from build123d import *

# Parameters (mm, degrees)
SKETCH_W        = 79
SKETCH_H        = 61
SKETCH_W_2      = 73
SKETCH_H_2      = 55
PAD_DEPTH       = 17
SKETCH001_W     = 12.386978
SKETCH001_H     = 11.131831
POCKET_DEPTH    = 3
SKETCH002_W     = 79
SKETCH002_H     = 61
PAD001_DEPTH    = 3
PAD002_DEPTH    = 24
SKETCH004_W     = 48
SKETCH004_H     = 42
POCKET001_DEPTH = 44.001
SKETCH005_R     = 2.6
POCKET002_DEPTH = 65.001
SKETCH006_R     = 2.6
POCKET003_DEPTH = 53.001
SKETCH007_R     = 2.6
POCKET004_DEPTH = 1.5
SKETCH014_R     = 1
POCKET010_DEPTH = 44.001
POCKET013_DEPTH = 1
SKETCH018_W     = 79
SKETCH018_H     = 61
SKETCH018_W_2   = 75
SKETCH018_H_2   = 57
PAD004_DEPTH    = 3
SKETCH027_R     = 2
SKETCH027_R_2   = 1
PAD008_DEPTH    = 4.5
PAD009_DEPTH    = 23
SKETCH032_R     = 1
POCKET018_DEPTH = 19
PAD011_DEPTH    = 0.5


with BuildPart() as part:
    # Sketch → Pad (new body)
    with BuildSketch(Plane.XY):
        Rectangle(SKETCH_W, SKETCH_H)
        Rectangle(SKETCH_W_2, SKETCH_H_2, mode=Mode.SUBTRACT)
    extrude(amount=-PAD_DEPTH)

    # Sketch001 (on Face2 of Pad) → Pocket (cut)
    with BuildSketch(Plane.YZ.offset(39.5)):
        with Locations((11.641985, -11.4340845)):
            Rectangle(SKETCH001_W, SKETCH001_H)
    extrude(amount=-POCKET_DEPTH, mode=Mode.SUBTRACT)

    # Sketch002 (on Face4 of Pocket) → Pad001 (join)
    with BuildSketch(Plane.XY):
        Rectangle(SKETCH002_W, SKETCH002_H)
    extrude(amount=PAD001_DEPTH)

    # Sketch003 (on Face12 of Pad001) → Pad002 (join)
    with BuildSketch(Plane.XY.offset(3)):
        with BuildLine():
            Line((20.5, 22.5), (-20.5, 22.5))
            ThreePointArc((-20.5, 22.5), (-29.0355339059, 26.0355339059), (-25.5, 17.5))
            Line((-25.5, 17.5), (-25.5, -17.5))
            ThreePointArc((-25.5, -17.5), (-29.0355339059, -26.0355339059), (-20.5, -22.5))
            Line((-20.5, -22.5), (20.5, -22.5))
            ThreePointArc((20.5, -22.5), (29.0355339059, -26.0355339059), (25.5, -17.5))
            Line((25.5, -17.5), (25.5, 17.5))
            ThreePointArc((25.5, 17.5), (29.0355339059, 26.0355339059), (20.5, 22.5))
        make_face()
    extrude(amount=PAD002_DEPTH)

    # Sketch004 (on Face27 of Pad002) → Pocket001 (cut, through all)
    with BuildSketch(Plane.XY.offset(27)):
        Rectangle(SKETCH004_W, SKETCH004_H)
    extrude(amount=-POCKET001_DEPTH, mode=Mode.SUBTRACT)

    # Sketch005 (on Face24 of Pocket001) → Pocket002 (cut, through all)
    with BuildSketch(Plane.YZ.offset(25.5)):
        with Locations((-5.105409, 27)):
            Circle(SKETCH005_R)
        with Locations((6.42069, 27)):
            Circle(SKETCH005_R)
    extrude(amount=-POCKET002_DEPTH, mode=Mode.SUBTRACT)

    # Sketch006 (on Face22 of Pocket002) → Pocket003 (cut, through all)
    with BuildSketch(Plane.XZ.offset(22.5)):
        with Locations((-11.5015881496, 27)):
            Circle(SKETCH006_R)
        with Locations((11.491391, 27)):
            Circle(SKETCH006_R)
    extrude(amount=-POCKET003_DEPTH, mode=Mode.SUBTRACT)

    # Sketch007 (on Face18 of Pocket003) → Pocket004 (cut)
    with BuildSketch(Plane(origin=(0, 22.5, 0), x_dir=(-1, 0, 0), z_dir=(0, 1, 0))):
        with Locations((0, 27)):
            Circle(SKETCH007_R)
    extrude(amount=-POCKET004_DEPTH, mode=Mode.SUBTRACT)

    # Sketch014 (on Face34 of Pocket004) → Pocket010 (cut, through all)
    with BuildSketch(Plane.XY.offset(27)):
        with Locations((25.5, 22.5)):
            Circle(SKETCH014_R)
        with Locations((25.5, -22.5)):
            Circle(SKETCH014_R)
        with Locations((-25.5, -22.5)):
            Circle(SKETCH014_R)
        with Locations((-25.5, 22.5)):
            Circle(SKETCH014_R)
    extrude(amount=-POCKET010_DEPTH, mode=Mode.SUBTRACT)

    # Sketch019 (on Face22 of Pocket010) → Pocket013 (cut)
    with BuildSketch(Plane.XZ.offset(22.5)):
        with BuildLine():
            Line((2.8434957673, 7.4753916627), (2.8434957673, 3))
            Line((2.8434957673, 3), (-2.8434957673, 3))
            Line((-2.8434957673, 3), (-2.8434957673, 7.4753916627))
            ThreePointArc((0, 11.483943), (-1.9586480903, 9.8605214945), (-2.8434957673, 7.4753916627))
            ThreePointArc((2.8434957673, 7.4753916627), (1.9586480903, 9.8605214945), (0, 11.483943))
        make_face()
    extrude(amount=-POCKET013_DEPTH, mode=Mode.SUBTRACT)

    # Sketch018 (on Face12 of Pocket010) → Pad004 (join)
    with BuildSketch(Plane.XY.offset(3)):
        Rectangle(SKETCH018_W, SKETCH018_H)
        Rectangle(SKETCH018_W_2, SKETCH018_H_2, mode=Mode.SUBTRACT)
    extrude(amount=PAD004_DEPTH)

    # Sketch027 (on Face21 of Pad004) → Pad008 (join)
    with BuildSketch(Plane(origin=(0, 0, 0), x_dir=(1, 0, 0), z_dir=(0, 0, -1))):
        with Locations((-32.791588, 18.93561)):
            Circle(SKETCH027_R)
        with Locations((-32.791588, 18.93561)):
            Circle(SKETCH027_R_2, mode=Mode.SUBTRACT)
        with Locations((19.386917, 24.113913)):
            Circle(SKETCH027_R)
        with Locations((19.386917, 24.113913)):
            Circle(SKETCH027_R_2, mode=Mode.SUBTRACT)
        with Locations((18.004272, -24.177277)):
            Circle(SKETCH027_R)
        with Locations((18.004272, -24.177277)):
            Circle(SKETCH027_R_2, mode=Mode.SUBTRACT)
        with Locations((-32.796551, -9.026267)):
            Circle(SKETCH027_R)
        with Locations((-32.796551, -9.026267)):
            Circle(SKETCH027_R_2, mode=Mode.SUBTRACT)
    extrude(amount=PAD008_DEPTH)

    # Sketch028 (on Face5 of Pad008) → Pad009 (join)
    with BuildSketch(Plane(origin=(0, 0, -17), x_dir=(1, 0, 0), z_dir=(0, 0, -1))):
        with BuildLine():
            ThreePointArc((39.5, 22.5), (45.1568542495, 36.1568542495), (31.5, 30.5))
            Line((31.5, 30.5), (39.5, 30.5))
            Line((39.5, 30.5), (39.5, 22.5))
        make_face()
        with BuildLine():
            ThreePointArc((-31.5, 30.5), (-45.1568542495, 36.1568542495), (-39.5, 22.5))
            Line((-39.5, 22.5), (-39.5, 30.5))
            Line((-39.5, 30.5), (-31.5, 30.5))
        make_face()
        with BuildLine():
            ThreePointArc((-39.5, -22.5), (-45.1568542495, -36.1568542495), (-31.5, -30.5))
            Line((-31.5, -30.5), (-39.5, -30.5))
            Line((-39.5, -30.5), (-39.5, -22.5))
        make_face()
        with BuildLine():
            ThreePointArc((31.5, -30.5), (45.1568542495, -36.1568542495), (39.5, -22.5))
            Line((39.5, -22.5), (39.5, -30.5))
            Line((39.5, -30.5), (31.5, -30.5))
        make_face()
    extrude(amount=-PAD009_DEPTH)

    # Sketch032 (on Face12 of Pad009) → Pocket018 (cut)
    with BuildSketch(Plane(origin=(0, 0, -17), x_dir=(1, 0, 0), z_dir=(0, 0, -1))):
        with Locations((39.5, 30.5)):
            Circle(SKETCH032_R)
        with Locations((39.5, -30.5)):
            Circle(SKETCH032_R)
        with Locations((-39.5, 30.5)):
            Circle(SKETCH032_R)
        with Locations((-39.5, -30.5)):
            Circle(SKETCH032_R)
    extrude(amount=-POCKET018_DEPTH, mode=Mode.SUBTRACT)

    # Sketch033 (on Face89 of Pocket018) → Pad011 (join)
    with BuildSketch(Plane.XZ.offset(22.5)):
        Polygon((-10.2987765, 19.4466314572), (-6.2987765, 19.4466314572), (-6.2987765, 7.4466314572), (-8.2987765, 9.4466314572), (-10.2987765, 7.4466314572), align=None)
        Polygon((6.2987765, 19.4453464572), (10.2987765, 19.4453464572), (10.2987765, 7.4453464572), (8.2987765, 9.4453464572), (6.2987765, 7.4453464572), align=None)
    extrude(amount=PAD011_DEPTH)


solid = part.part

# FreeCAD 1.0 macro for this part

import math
import FreeCAD as App
import Part
import Sketcher
from FreeCAD import Vector

doc = App.newDocument("Part")
params = doc.addObject("Spreadsheet::Sheet", "Params")
for row, (alias, value) in enumerate([
    ("sketch1_width", "79 mm"),
    ("sketch1_width2", "73 mm"),
    ("sketch1_height", "61 mm"),
    ("sketch1_height2", "55 mm"),
    ("pad1_length", "17 mm"),
    ("pocket1_length", "3 mm"),
    ("sketch3_width", "79 mm"),
    ("sketch3_height", "61 mm"),
    ("pad2_length", "3 mm"),
    ("sketch4_radius", "5 mm"),
    ("sketch4_width", "41 mm"),
    ("sketch4_height", "35 mm"),
    ("pad3_length", "24 mm"),
    ("sketch5_width", "48 mm"),
    ("sketch5_height", "42 mm"),
    ("sketch6_diameter", "5.2 mm"),
    ("sketch7_diameter", "5.2 mm"),
    ("sketch8_diameter", "5.2 mm"),
    ("pocket5_length", "1.5 mm"),
    ("sketch9_diameter", "2 mm"),
    ("pocket7_length", "1 mm"),
    ("sketch11_width", "79 mm"),
    ("sketch11_width2", "75 mm"),
    ("sketch11_height", "61 mm"),
    ("sketch11_height2", "57 mm"),
    ("pad4_length", "3 mm"),
    ("sketch12_diameter", "4 mm"),
    ("sketch12_diameter2", "2 mm"),
    ("pad5_length", "4.5 mm"),
    ("sketch13_radius", "8 mm"),
    ("pad6_length", "23 mm"),
    ("sketch14_diameter", "2 mm"),
    ("pocket8_length", "19 mm"),
    ("sketch15_width", "4 mm"),
    ("sketch15_height", "12 mm"),
    ("pad7_length", "0.5 mm"),
], start=1):
    params.set(f"A{row}", alias)
    params.set(f"B{row}", "=" + value)
    params.setAlias(f"B{row}", alias)

body = doc.addObject("PartDesign::Body", "Body")

# Sketch on XY plane
sketch1 = doc.addObject("Sketcher::SketchObject", "Sketch")
body.addObject(sketch1)
sketch1.AttachmentSupport = (doc.XY_Plane, [""])
sketch1.MapMode = "FlatFace"
sketch1.addGeometry(Part.LineSegment(Vector(-40, 30, 0), Vector(-40, -30, 0)), False)
sketch1.addGeometry(Part.LineSegment(Vector(-40, -30, 0), Vector(40, -30, 0)), False)
sketch1.addGeometry(Part.LineSegment(Vector(40, -30, 0), Vector(40, 30, 0)), False)
sketch1.addGeometry(Part.LineSegment(Vector(40, 30, 0), Vector(-40, 30, 0)), False)
sketch1.addGeometry(Part.LineSegment(Vector(36, -28, 0), Vector(-36, -28, 0)), False)
sketch1.addGeometry(Part.LineSegment(Vector(-36, -28, 0), Vector(-36, 28, 0)), False)
sketch1.addGeometry(Part.LineSegment(Vector(-36, 28, 0), Vector(36, 28, 0)), False)
sketch1.addGeometry(Part.LineSegment(Vector(36, 28, 0), Vector(36, -28, 0)), False)
sketch1.addConstraint(Sketcher.Constraint("Coincident", 0, 2, 1, 1))
sketch1.addConstraint(Sketcher.Constraint("Coincident", 1, 2, 2, 1))
sketch1.addConstraint(Sketcher.Constraint("Coincident", 2, 2, 3, 1))
sketch1.addConstraint(Sketcher.Constraint("Coincident", 3, 2, 0, 1))
sketch1.addConstraint(Sketcher.Constraint("Coincident", 4, 2, 5, 1))
sketch1.addConstraint(Sketcher.Constraint("Coincident", 5, 2, 6, 1))
sketch1.addConstraint(Sketcher.Constraint("Coincident", 6, 2, 7, 1))
sketch1.addConstraint(Sketcher.Constraint("Coincident", 7, 2, 4, 1))
sketch1.addConstraint(Sketcher.Constraint("Vertical", 0))
sketch1.addConstraint(Sketcher.Constraint("Horizontal", 1))
sketch1.addConstraint(Sketcher.Constraint("Vertical", 2))
sketch1.addConstraint(Sketcher.Constraint("Horizontal", 3))
sketch1.addConstraint(Sketcher.Constraint("Horizontal", 4))
sketch1.addConstraint(Sketcher.Constraint("Vertical", 5))
sketch1.addConstraint(Sketcher.Constraint("Horizontal", 6))
sketch1.addConstraint(Sketcher.Constraint("Vertical", 7))
sketch1.addConstraint(Sketcher.Constraint("Symmetric", 0, 2, 2, 2, -1, 1))
sketch1.addConstraint(Sketcher.Constraint("Symmetric", 4, 2, 6, 2, -1, 1))
sketch1.addConstraint(Sketcher.Constraint("DistanceX", 1, 1, 1, 2, 79.0))
sketch1.addConstraint(Sketcher.Constraint("DistanceX", 4, 2, 4, 1, 73.0))
sketch1.addConstraint(Sketcher.Constraint("DistanceY", 0, 2, 0, 1, 61.0))
sketch1.addConstraint(Sketcher.Constraint("DistanceY", 5, 1, 5, 2, 55.0))
sketch1.setExpression("Constraints[18]", "Params.sketch1_width")
sketch1.setExpression("Constraints[19]", "Params.sketch1_width2")
sketch1.setExpression("Constraints[20]", "Params.sketch1_height")
sketch1.setExpression("Constraints[21]", "Params.sketch1_height2")
pad1 = doc.addObject("PartDesign::Pad", "Pad")
body.addObject(pad1)
pad1.Profile = sketch1
pad1.setExpression("Length", "Params.pad1_length")
pad1.Reversed = True

# Sketch on YZ plane
sketch2 = doc.addObject("Sketcher::SketchObject", "Sketch001")
body.addObject(sketch2)
sketch2.AttachmentSupport = (doc.YZ_Plane, [""])
sketch2.MapMode = "FlatFace"
sketch2.AttachmentOffset = App.Placement(Vector(0, 0, 39.5), App.Rotation())
sketch2.addGeometry(Part.LineSegment(Vector(5, -6, 0), Vector(5, -17, 0)), False)
sketch2.addGeometry(Part.LineSegment(Vector(5, -17, 0), Vector(18, -17, 0)), False)
sketch2.addGeometry(Part.LineSegment(Vector(18, -17, 0), Vector(18, -6, 0)), False)
sketch2.addGeometry(Part.LineSegment(Vector(18, -6, 0), Vector(5, -6, 0)), False)
sketch2.addConstraint(Sketcher.Constraint("Coincident", 0, 2, 1, 1))
sketch2.addConstraint(Sketcher.Constraint("Coincident", 1, 2, 2, 1))
sketch2.addConstraint(Sketcher.Constraint("Coincident", 2, 2, 3, 1))
sketch2.addConstraint(Sketcher.Constraint("Coincident", 3, 2, 0, 1))
sketch2.addConstraint(Sketcher.Constraint("Vertical", 0))
sketch2.addConstraint(Sketcher.Constraint("Horizontal", 1))
sketch2.addConstraint(Sketcher.Constraint("Vertical", 2))
sketch2.addConstraint(Sketcher.Constraint("Horizontal", 3))
sketch2.addConstraint(Sketcher.Constraint("DistanceY", 0, 2, -1, 1, 17.0))
sketch2.addConstraint(Sketcher.Constraint("DistanceX", 1, 1, 1, 2, 12.386978))
sketch2.addConstraint(Sketcher.Constraint("DistanceY", 0, 2, 0, 1, 11.131831))
sketch2.addConstraint(Sketcher.Constraint("DistanceX", -1, 1, 0, 2, 5.448496))
pocket1 = doc.addObject("PartDesign::Pocket", "Pocket")
body.addObject(pocket1)
pocket1.Profile = sketch2
pocket1.setExpression("Length", "Params.pocket1_length")

# Sketch on XY plane
sketch3 = doc.addObject("Sketcher::SketchObject", "Sketch002")
body.addObject(sketch3)
sketch3.AttachmentSupport = (doc.XY_Plane, [""])
sketch3.MapMode = "FlatFace"
sketch3.addGeometry(Part.LineSegment(Vector(-40, 30, 0), Vector(-40, -30, 0)), False)
sketch3.addGeometry(Part.LineSegment(Vector(-40, -30, 0), Vector(40, -30, 0)), False)
sketch3.addGeometry(Part.LineSegment(Vector(40, -30, 0), Vector(40, 30, 0)), False)
sketch3.addGeometry(Part.LineSegment(Vector(40, 30, 0), Vector(-40, 30, 0)), False)
sketch3.addConstraint(Sketcher.Constraint("Coincident", 0, 2, 1, 1))
sketch3.addConstraint(Sketcher.Constraint("Coincident", 1, 2, 2, 1))
sketch3.addConstraint(Sketcher.Constraint("Coincident", 2, 2, 3, 1))
sketch3.addConstraint(Sketcher.Constraint("Coincident", 3, 2, 0, 1))
sketch3.addConstraint(Sketcher.Constraint("Vertical", 0))
sketch3.addConstraint(Sketcher.Constraint("Horizontal", 1))
sketch3.addConstraint(Sketcher.Constraint("Vertical", 2))
sketch3.addConstraint(Sketcher.Constraint("Horizontal", 3))
sketch3.addConstraint(Sketcher.Constraint("Symmetric", 0, 2, 2, 2, -1, 1))
sketch3.addConstraint(Sketcher.Constraint("DistanceX", 1, 1, 1, 2, 79.0))
sketch3.addConstraint(Sketcher.Constraint("DistanceY", 0, 2, 0, 1, 61.0))
sketch3.setExpression("Constraints[9]", "Params.sketch3_width")
sketch3.setExpression("Constraints[10]", "Params.sketch3_height")
pad2 = doc.addObject("PartDesign::Pad", "Pad001")
body.addObject(pad2)
pad2.Profile = sketch3
pad2.setExpression("Length", "Params.pad2_length")

# Sketch on XY plane
sketch4 = doc.addObject("Sketcher::SketchObject", "Sketch003")
body.addObject(sketch4)
sketch4.AttachmentSupport = (doc.XY_Plane, [""])
sketch4.MapMode = "FlatFace"
sketch4.AttachmentOffset = App.Placement(Vector(0, 0, 3), App.Rotation())
sketch4.addGeometry(Part.LineSegment(Vector(20, 22, 0), Vector(-20, 22, 0)), False)
sketch4.addGeometry(Part.ArcOfCircle(Part.Circle(Vector(-26, 22, 0), Vector(0, 0, 1), 5), math.radians(0), math.radians(270)), False)
sketch4.addGeometry(Part.LineSegment(Vector(-26, 18, 0), Vector(-26, -18, 0)), False)
sketch4.addGeometry(Part.ArcOfCircle(Part.Circle(Vector(-26, -22, 0), Vector(0, 0, 1), 5), math.radians(90), math.radians(360)), False)
sketch4.addGeometry(Part.LineSegment(Vector(-20, -22, 0), Vector(20, -22, 0)), False)
sketch4.addGeometry(Part.ArcOfCircle(Part.Circle(Vector(26, -22, 0), Vector(0, 0, 1), 5), math.radians(180), math.radians(450)), False)
sketch4.addGeometry(Part.LineSegment(Vector(26, -18, 0), Vector(26, 18, 0)), False)
sketch4.addGeometry(Part.ArcOfCircle(Part.Circle(Vector(26, 22, 0), Vector(0, 0, 1), 5), math.radians(-90), math.radians(180)), False)
sketch4.addConstraint(Sketcher.Constraint("Coincident", 0, 2, 1, 1))
sketch4.addConstraint(Sketcher.Constraint("Coincident", 1, 2, 2, 1))
sketch4.addConstraint(Sketcher.Constraint("Coincident", 2, 2, 3, 1))
sketch4.addConstraint(Sketcher.Constraint("Coincident", 3, 2, 4, 1))
sketch4.addConstraint(Sketcher.Constraint("Coincident", 4, 2, 5, 1))
sketch4.addConstraint(Sketcher.Constraint("Coincident", 5, 2, 6, 1))
sketch4.addConstraint(Sketcher.Constraint("Coincident", 6, 2, 7, 1))
sketch4.addConstraint(Sketcher.Constraint("Coincident", 7, 2, 0, 1))
sketch4.addConstraint(Sketcher.Constraint("Horizontal", 0))
sketch4.addConstraint(Sketcher.Constraint("Vertical", 2))
sketch4.addConstraint(Sketcher.Constraint("Horizontal", 4))
sketch4.addConstraint(Sketcher.Constraint("Vertical", 6))
sketch4.addConstraint(Sketcher.Constraint("Equal", 1, 3))
sketch4.addConstraint(Sketcher.Constraint("Equal", 3, 5))
sketch4.addConstraint(Sketcher.Constraint("Equal", 5, 7))
sketch4.addConstraint(Sketcher.Constraint("Symmetric", 1, 3, 5, 3, -1, 1))
sketch4.addConstraint(Sketcher.Constraint("Symmetric", 3, 3, 7, 3, -1, 1))
sketch4.addConstraint(Sketcher.Constraint("Symmetric", 3, 3, 5, 3, -2))
sketch4.addConstraint(Sketcher.Constraint("Horizontal", 7, 3, 0, 2))
sketch4.addConstraint(Sketcher.Constraint("Horizontal", 5, 3, 3, 2))
sketch4.addConstraint(Sketcher.Constraint("Vertical", 3, 3, 1, 2))
sketch4.addConstraint(Sketcher.Constraint("Vertical", 7, 3, 5, 2))
sketch4.addConstraint(Sketcher.Constraint("Radius", 1, 5.0))
sketch4.addConstraint(Sketcher.Constraint("DistanceX", 0, 2, 0, 1, 41.0))
sketch4.addConstraint(Sketcher.Constraint("DistanceY", 2, 2, 2, 1, 35.0))
sketch4.setExpression("Constraints[22]", "Params.sketch4_radius")
sketch4.setExpression("Constraints[23]", "Params.sketch4_width")
sketch4.setExpression("Constraints[24]", "Params.sketch4_height")
pad3 = doc.addObject("PartDesign::Pad", "Pad002")
body.addObject(pad3)
pad3.Profile = sketch4
pad3.setExpression("Length", "Params.pad3_length")

# Sketch on XY plane
sketch5 = doc.addObject("Sketcher::SketchObject", "Sketch004")
body.addObject(sketch5)
sketch5.AttachmentSupport = (doc.XY_Plane, [""])
sketch5.MapMode = "FlatFace"
sketch5.AttachmentOffset = App.Placement(Vector(0, 0, 27), App.Rotation())
sketch5.addGeometry(Part.LineSegment(Vector(-24, 21, 0), Vector(-24, -21, 0)), False)
sketch5.addGeometry(Part.LineSegment(Vector(-24, -21, 0), Vector(24, -21, 0)), False)
sketch5.addGeometry(Part.LineSegment(Vector(24, -21, 0), Vector(24, 21, 0)), False)
sketch5.addGeometry(Part.LineSegment(Vector(24, 21, 0), Vector(-24, 21, 0)), False)
sketch5.addConstraint(Sketcher.Constraint("Coincident", 0, 2, 1, 1))
sketch5.addConstraint(Sketcher.Constraint("Coincident", 1, 2, 2, 1))
sketch5.addConstraint(Sketcher.Constraint("Coincident", 2, 2, 3, 1))
sketch5.addConstraint(Sketcher.Constraint("Coincident", 3, 2, 0, 1))
sketch5.addConstraint(Sketcher.Constraint("Vertical", 0))
sketch5.addConstraint(Sketcher.Constraint("Horizontal", 1))
sketch5.addConstraint(Sketcher.Constraint("Vertical", 2))
sketch5.addConstraint(Sketcher.Constraint("Horizontal", 3))
sketch5.addConstraint(Sketcher.Constraint("Symmetric", 0, 2, 2, 2, -1, 1))
sketch5.addConstraint(Sketcher.Constraint("DistanceX", 1, 1, 1, 2, 48.0))
sketch5.addConstraint(Sketcher.Constraint("DistanceY", 0, 2, 0, 1, 42.0))
sketch5.setExpression("Constraints[9]", "Params.sketch5_width")
sketch5.setExpression("Constraints[10]", "Params.sketch5_height")
pocket2 = doc.addObject("PartDesign::Pocket", "Pocket001")
body.addObject(pocket2)
pocket2.Profile = sketch5
pocket2.Type = "ThroughAll"

# Sketch on YZ plane
sketch6 = doc.addObject("Sketcher::SketchObject", "Sketch005")
body.addObject(sketch6)
sketch6.AttachmentSupport = (doc.YZ_Plane, [""])
sketch6.MapMode = "FlatFace"
sketch6.AttachmentOffset = App.Placement(Vector(0, 0, 25.5), App.Rotation())
sketch6.addGeometry(Part.Circle(Vector(-5.1, 27, 0), Vector(0, 0, 1), 2.6), False)
sketch6.addGeometry(Part.Circle(Vector(6.4, 27, 0), Vector(0, 0, 1), 2.6), False)
sketch6.addConstraint(Sketcher.Constraint("Equal", 0, 1))
sketch6.addConstraint(Sketcher.Constraint("Horizontal", 0, 3, 1, 3))
sketch6.addConstraint(Sketcher.Constraint("Diameter", 0, 5.2))
sketch6.addConstraint(Sketcher.Constraint("DistanceY", -1, 1, 0, 3, 27.0))
sketch6.addConstraint(Sketcher.Constraint("DistanceX", 0, 3, 1, 3, 11.526099))
sketch6.addConstraint(Sketcher.Constraint("DistanceX", 0, 3, -1, 1, 5.105409))
sketch6.setExpression("Constraints[2]", "Params.sketch6_diameter")
pocket3 = doc.addObject("PartDesign::Pocket", "Pocket002")
body.addObject(pocket3)
pocket3.Profile = sketch6
pocket3.Type = "ThroughAll"

# Sketch on XZ plane
sketch7 = doc.addObject("Sketcher::SketchObject", "Sketch006")
body.addObject(sketch7)
sketch7.AttachmentSupport = (doc.XZ_Plane, [""])
sketch7.MapMode = "FlatFace"
sketch7.AttachmentOffset = App.Placement(Vector(0, 0, 22.5), App.Rotation())
sketch7.addGeometry(Part.Circle(Vector(-11.5, 27, 0), Vector(0, 0, 1), 2.6), False)
sketch7.addGeometry(Part.Circle(Vector(11.5, 27, 0), Vector(0, 0, 1), 2.6), False)
sketch7.addConstraint(Sketcher.Constraint("Equal", 0, 1))
sketch7.addConstraint(Sketcher.Constraint("Horizontal", 0, 3, 1, 3))
sketch7.addConstraint(Sketcher.Constraint("Diameter", 0, 5.2))
sketch7.addConstraint(Sketcher.Constraint("DistanceY", -1, 1, 0, 3, 27.0))
sketch7.addConstraint(Sketcher.Constraint("DistanceX", 0, 3, -1, 1, 11.501588))
sketch7.addConstraint(Sketcher.Constraint("DistanceX", -1, 1, 1, 3, 11.491391))
sketch7.setExpression("Constraints[2]", "Params.sketch7_diameter")
pocket4 = doc.addObject("PartDesign::Pocket", "Pocket003")
body.addObject(pocket4)
pocket4.Profile = sketch7
pocket4.Type = "ThroughAll"

# Sketch on XZ plane
sketch8 = doc.addObject("Sketcher::SketchObject", "Sketch007")
body.addObject(sketch8)
sketch8.AttachmentSupport = (doc.XZ_Plane, [""])
sketch8.MapMode = "FlatFace"
sketch8.AttachmentOffset = App.Placement(Vector(0, 0, -22.5), App.Rotation())
sketch8.addGeometry(Part.Circle(Vector(0, 27, 0), Vector(0, 0, 1), 2.6), False)
sketch8.addConstraint(Sketcher.Constraint("PointOnObject", 0, 3, -2))
sketch8.addConstraint(Sketcher.Constraint("Diameter", 0, 5.2))
sketch8.addConstraint(Sketcher.Constraint("DistanceY", -1, 1, 0, 3, 27.0))
sketch8.setExpression("Constraints[1]", "Params.sketch8_diameter")
pocket5 = doc.addObject("PartDesign::Pocket", "Pocket004")
body.addObject(pocket5)
pocket5.Profile = sketch8
pocket5.setExpression("Length", "Params.pocket5_length")
pocket5.Reversed = True

# Sketch on XY plane
sketch9 = doc.addObject("Sketcher::SketchObject", "Sketch008")
body.addObject(sketch9)
sketch9.AttachmentSupport = (doc.XY_Plane, [""])
sketch9.MapMode = "FlatFace"
sketch9.AttachmentOffset = App.Placement(Vector(0, 0, 27), App.Rotation())
sketch9.addGeometry(Part.Circle(Vector(25.5, 22.5, 0), Vector(0, 0, 1), 1), False)
sketch9.addGeometry(Part.Circle(Vector(25.5, -22.5, 0), Vector(0, 0, 1), 1), False)
sketch9.addGeometry(Part.Circle(Vector(-25.5, -22.5, 0), Vector(0, 0, 1), 1), False)
sketch9.addGeometry(Part.Circle(Vector(-25.5, 22.5, 0), Vector(0, 0, 1), 1), False)
sketch9.addConstraint(Sketcher.Constraint("Equal", 0, 1))
sketch9.addConstraint(Sketcher.Constraint("Equal", 1, 2))
sketch9.addConstraint(Sketcher.Constraint("Equal", 2, 3))
sketch9.addConstraint(Sketcher.Constraint("Symmetric", 0, 3, 2, 3, -1, 1))
sketch9.addConstraint(Sketcher.Constraint("Symmetric", 1, 3, 3, 3, -1, 1))
sketch9.addConstraint(Sketcher.Constraint("Symmetric", 1, 3, 2, 3, -2))
sketch9.addConstraint(Sketcher.Constraint("Diameter", 0, 2.0))
sketch9.addConstraint(Sketcher.Constraint("DistanceY", 1, 3, 0, 3, 45.0))
sketch9.addConstraint(Sketcher.Constraint("DistanceX", 2, 3, 1, 3, 51.0))
sketch9.setExpression("Constraints[6]", "Params.sketch9_diameter")
pocket6 = doc.addObject("PartDesign::Pocket", "Pocket005")
body.addObject(pocket6)
pocket6.Profile = sketch9
pocket6.Type = "ThroughAll"

# Sketch on XZ plane
sketch10 = doc.addObject("Sketcher::SketchObject", "Sketch009")
body.addObject(sketch10)
sketch10.AttachmentSupport = (doc.XZ_Plane, [""])
sketch10.MapMode = "FlatFace"
sketch10.AttachmentOffset = App.Placement(Vector(0, 0, 22.5), App.Rotation())
sketch10.addGeometry(Part.LineSegment(Vector(2.8, 3, 0), Vector(2.8, 7.5, 0)), False)
sketch10.addGeometry(Part.ArcOfCircle(Part.Circle(Vector(-2.1, 7, 0), Vector(0, 0, 1), 4.9), math.radians(5), math.radians(65)), False)
sketch10.addGeometry(Part.ArcOfCircle(Part.Circle(Vector(2.1, 7, 0), Vector(0, 0, 1), 4.9), math.radians(115), math.radians(175)), False)
sketch10.addGeometry(Part.LineSegment(Vector(-2.8, 7.5, 0), Vector(-2.8, 3, 0)), False)
sketch10.addGeometry(Part.LineSegment(Vector(-2.8, 3, 0), Vector(2.8, 3, 0)), False)
sketch10.addConstraint(Sketcher.Constraint("Coincident", 0, 2, 1, 1))
sketch10.addConstraint(Sketcher.Constraint("Coincident", 1, 2, 2, 1))
sketch10.addConstraint(Sketcher.Constraint("Coincident", 2, 2, 3, 1))
sketch10.addConstraint(Sketcher.Constraint("Coincident", 3, 2, 4, 1))
sketch10.addConstraint(Sketcher.Constraint("Coincident", 4, 2, 0, 1))
sketch10.addConstraint(Sketcher.Constraint("Vertical", 0))
sketch10.addConstraint(Sketcher.Constraint("Vertical", 3))
sketch10.addConstraint(Sketcher.Constraint("Horizontal", 4))
sketch10.addConstraint(Sketcher.Constraint("Equal", 1, 2))
sketch10.addConstraint(Sketcher.Constraint("Symmetric", 1, 3, 2, 3, -2))
sketch10.addConstraint(Sketcher.Constraint("Horizontal", 0, 2, 2, 2))
sketch10.addConstraint(Sketcher.Constraint("DistanceY", -1, 1, 3, 2, 3.0))
sketch10.addConstraint(Sketcher.Constraint("Radius", 1, 4.915807))
sketch10.addConstraint(Sketcher.Constraint("DistanceX", 4, 1, 4, 2, 5.686992))
sketch10.addConstraint(Sketcher.Constraint("DistanceY", 0, 1, 0, 2, 4.475392))
sketch10.addConstraint(Sketcher.Constraint("DistanceX", 1, 3, 0, 2, 4.894329))
pocket7 = doc.addObject("PartDesign::Pocket", "Pocket006")
body.addObject(pocket7)
pocket7.Profile = sketch10
pocket7.setExpression("Length", "Params.pocket7_length")

# Sketch on XY plane
sketch11 = doc.addObject("Sketcher::SketchObject", "Sketch010")
body.addObject(sketch11)
sketch11.AttachmentSupport = (doc.XY_Plane, [""])
sketch11.MapMode = "FlatFace"
sketch11.AttachmentOffset = App.Placement(Vector(0, 0, 3), App.Rotation())
sketch11.addGeometry(Part.LineSegment(Vector(-40, 30, 0), Vector(-40, -30, 0)), False)
sketch11.addGeometry(Part.LineSegment(Vector(-40, -30, 0), Vector(40, -30, 0)), False)
sketch11.addGeometry(Part.LineSegment(Vector(40, -30, 0), Vector(40, 30, 0)), False)
sketch11.addGeometry(Part.LineSegment(Vector(40, 30, 0), Vector(-40, 30, 0)), False)
sketch11.addGeometry(Part.LineSegment(Vector(38, -28, 0), Vector(-38, -28, 0)), False)
sketch11.addGeometry(Part.LineSegment(Vector(-38, -28, 0), Vector(-38, 28, 0)), False)
sketch11.addGeometry(Part.LineSegment(Vector(-38, 28, 0), Vector(38, 28, 0)), False)
sketch11.addGeometry(Part.LineSegment(Vector(38, 28, 0), Vector(38, -28, 0)), False)
sketch11.addConstraint(Sketcher.Constraint("Coincident", 0, 2, 1, 1))
sketch11.addConstraint(Sketcher.Constraint("Coincident", 1, 2, 2, 1))
sketch11.addConstraint(Sketcher.Constraint("Coincident", 2, 2, 3, 1))
sketch11.addConstraint(Sketcher.Constraint("Coincident", 3, 2, 0, 1))
sketch11.addConstraint(Sketcher.Constraint("Coincident", 4, 2, 5, 1))
sketch11.addConstraint(Sketcher.Constraint("Coincident", 5, 2, 6, 1))
sketch11.addConstraint(Sketcher.Constraint("Coincident", 6, 2, 7, 1))
sketch11.addConstraint(Sketcher.Constraint("Coincident", 7, 2, 4, 1))
sketch11.addConstraint(Sketcher.Constraint("Vertical", 0))
sketch11.addConstraint(Sketcher.Constraint("Horizontal", 1))
sketch11.addConstraint(Sketcher.Constraint("Vertical", 2))
sketch11.addConstraint(Sketcher.Constraint("Horizontal", 3))
sketch11.addConstraint(Sketcher.Constraint("Horizontal", 4))
sketch11.addConstraint(Sketcher.Constraint("Vertical", 5))
sketch11.addConstraint(Sketcher.Constraint("Horizontal", 6))
sketch11.addConstraint(Sketcher.Constraint("Vertical", 7))
sketch11.addConstraint(Sketcher.Constraint("Symmetric", 0, 2, 2, 2, -1, 1))
sketch11.addConstraint(Sketcher.Constraint("Symmetric", 4, 2, 6, 2, -1, 1))
sketch11.addConstraint(Sketcher.Constraint("DistanceX", 1, 1, 1, 2, 79.0))
sketch11.addConstraint(Sketcher.Constraint("DistanceX", 4, 2, 4, 1, 75.0))
sketch11.addConstraint(Sketcher.Constraint("DistanceY", 0, 2, 0, 1, 61.0))
sketch11.addConstraint(Sketcher.Constraint("DistanceY", 5, 1, 5, 2, 57.0))
sketch11.setExpression("Constraints[18]", "Params.sketch11_width")
sketch11.setExpression("Constraints[19]", "Params.sketch11_width2")
sketch11.setExpression("Constraints[20]", "Params.sketch11_height")
sketch11.setExpression("Constraints[21]", "Params.sketch11_height2")
pad4 = doc.addObject("PartDesign::Pad", "Pad003")
body.addObject(pad4)
pad4.Profile = sketch11
pad4.setExpression("Length", "Params.pad4_length")

# Sketch on XY plane
sketch12 = doc.addObject("Sketcher::SketchObject", "Sketch011")
body.addObject(sketch12)
sketch12.AttachmentSupport = (doc.XY_Plane, [""])
sketch12.MapMode = "FlatFace"
sketch12.addGeometry(Part.Circle(Vector(-32.8, -18.9, 0), Vector(0, 0, 1), 2), False)
sketch12.addGeometry(Part.Circle(Vector(-32.8, -18.9, 0), Vector(0, 0, 1), 1), False)
sketch12.addGeometry(Part.Circle(Vector(19.4, -24.1, 0), Vector(0, 0, 1), 2), False)
sketch12.addGeometry(Part.Circle(Vector(19.4, -24.1, 0), Vector(0, 0, 1), 1), False)
sketch12.addGeometry(Part.Circle(Vector(18, 24.2, 0), Vector(0, 0, 1), 2), False)
sketch12.addGeometry(Part.Circle(Vector(18, 24.2, 0), Vector(0, 0, 1), 1), False)
sketch12.addGeometry(Part.Circle(Vector(-32.8, 9, 0), Vector(0, 0, 1), 2), False)
sketch12.addGeometry(Part.Circle(Vector(-32.8, 9, 0), Vector(0, 0, 1), 1), False)
sketch12.addConstraint(Sketcher.Constraint("Coincident", 1, 3, 0, 3))
sketch12.addConstraint(Sketcher.Constraint("Coincident", 3, 3, 2, 3))
sketch12.addConstraint(Sketcher.Constraint("Coincident", 5, 3, 4, 3))
sketch12.addConstraint(Sketcher.Constraint("Coincident", 7, 3, 6, 3))
sketch12.addConstraint(Sketcher.Constraint("Equal", 0, 2))
sketch12.addConstraint(Sketcher.Constraint("Equal", 1, 3))
sketch12.addConstraint(Sketcher.Constraint("Equal", 2, 4))
sketch12.addConstraint(Sketcher.Constraint("Equal", 3, 5))
sketch12.addConstraint(Sketcher.Constraint("Equal", 4, 6))
sketch12.addConstraint(Sketcher.Constraint("Equal", 5, 7))
sketch12.addConstraint(Sketcher.Constraint("Diameter", 0, 4.0))
sketch12.addConstraint(Sketcher.Constraint("Diameter", 1, 2.0))
sketch12.addConstraint(Sketcher.Constraint("DistanceY", 0, 3, -1, 1, 18.93561))
sketch12.addConstraint(Sketcher.Constraint("DistanceX", -1, 1, 4, 3, 18.004272))
sketch12.addConstraint(Sketcher.Constraint("DistanceX", 6, 3, -1, 1, 32.796551))
sketch12.addConstraint(Sketcher.Constraint("DistanceY", 2, 3, 4, 3, 48.29119))
sketch12.addConstraint(Sketcher.Constraint("DistanceX", 0, 3, 4, 3, 50.79586))
sketch12.addConstraint(Sketcher.Constraint("DistanceY", 6, 3, 4, 3, 15.15101))
sketch12.addConstraint(Sketcher.Constraint("DistanceX", 6, 3, 2, 3, 52.183468))
sketch12.addConstraint(Sketcher.Constraint("DistanceY", 2, 3, -1, 1, 24.113913))
sketch12.setExpression("Constraints[10]", "Params.sketch12_diameter")
sketch12.setExpression("Constraints[11]", "Params.sketch12_diameter2")
pad5 = doc.addObject("PartDesign::Pad", "Pad004")
body.addObject(pad5)
pad5.Profile = sketch12
pad5.setExpression("Length", "Params.pad5_length")
pad5.Reversed = True

# Sketch on XY plane
sketch13 = doc.addObject("Sketcher::SketchObject", "Sketch012")
body.addObject(sketch13)
sketch13.AttachmentSupport = (doc.XY_Plane, [""])
sketch13.MapMode = "FlatFace"
sketch13.AttachmentOffset = App.Placement(Vector(0, 0, -17), App.Rotation())
sketch13.addGeometry(Part.ArcOfCircle(Part.Circle(Vector(40, -30, 0), Vector(0, 0, 1), 8), math.radians(180), math.radians(450)), False)
sketch13.addGeometry(Part.LineSegment(Vector(32, -30, 0), Vector(40, -30, 0)), False)
sketch13.addGeometry(Part.LineSegment(Vector(40, -30, 0), Vector(40, -22, 0)), False)
sketch13.addGeometry(Part.ArcOfCircle(Part.Circle(Vector(-40, -30, 0), Vector(0, 0, 1), 8), math.radians(90), math.radians(360)), False)
sketch13.addGeometry(Part.LineSegment(Vector(-40, -22, 0), Vector(-40, -30, 0)), False)
sketch13.addGeometry(Part.LineSegment(Vector(-40, -30, 0), Vector(-32, -30, 0)), False)
sketch13.addGeometry(Part.ArcOfCircle(Part.Circle(Vector(-40, 30, 0), Vector(0, 0, 1), 8), math.radians(0), math.radians(270)), False)
sketch13.addGeometry(Part.LineSegment(Vector(-32, 30, 0), Vector(-40, 30, 0)), False)
sketch13.addGeometry(Part.LineSegment(Vector(-40, 30, 0), Vector(-40, 22, 0)), False)
sketch13.addGeometry(Part.ArcOfCircle(Part.Circle(Vector(40, 30, 0), Vector(0, 0, 1), 8), math.radians(-90), math.radians(180)), False)
sketch13.addGeometry(Part.LineSegment(Vector(40, 22, 0), Vector(40, 30, 0)), False)
sketch13.addGeometry(Part.LineSegment(Vector(40, 30, 0), Vector(32, 30, 0)), False)
sketch13.addConstraint(Sketcher.Constraint("Coincident", 0, 1, 1, 1))
sketch13.addConstraint(Sketcher.Constraint("Coincident", 1, 2, 2, 1))
sketch13.addConstraint(Sketcher.Constraint("Coincident", 2, 2, 0, 2))
sketch13.addConstraint(Sketcher.Constraint("Coincident", 3, 1, 4, 1))
sketch13.addConstraint(Sketcher.Constraint("Coincident", 4, 2, 5, 1))
sketch13.addConstraint(Sketcher.Constraint("Coincident", 5, 2, 3, 2))
sketch13.addConstraint(Sketcher.Constraint("Coincident", 6, 1, 7, 1))
sketch13.addConstraint(Sketcher.Constraint("Coincident", 7, 2, 8, 1))
sketch13.addConstraint(Sketcher.Constraint("Coincident", 8, 2, 6, 2))
sketch13.addConstraint(Sketcher.Constraint("Coincident", 9, 1, 10, 1))
sketch13.addConstraint(Sketcher.Constraint("Coincident", 10, 2, 11, 1))
sketch13.addConstraint(Sketcher.Constraint("Coincident", 11, 2, 9, 2))
sketch13.addConstraint(Sketcher.Constraint("Horizontal", 1))
sketch13.addConstraint(Sketcher.Constraint("Vertical", 2))
sketch13.addConstraint(Sketcher.Constraint("Vertical", 4))
sketch13.addConstraint(Sketcher.Constraint("Horizontal", 5))
sketch13.addConstraint(Sketcher.Constraint("Horizontal", 7))
sketch13.addConstraint(Sketcher.Constraint("Vertical", 8))
sketch13.addConstraint(Sketcher.Constraint("Vertical", 10))
sketch13.addConstraint(Sketcher.Constraint("Horizontal", 11))
sketch13.addConstraint(Sketcher.Constraint("Coincident", 1, 2, 0, 3))
sketch13.addConstraint(Sketcher.Constraint("Coincident", 4, 2, 3, 3))
sketch13.addConstraint(Sketcher.Constraint("Coincident", 7, 2, 6, 3))
sketch13.addConstraint(Sketcher.Constraint("Coincident", 10, 2, 9, 3))
sketch13.addConstraint(Sketcher.Constraint("Equal", 0, 3))
sketch13.addConstraint(Sketcher.Constraint("Equal", 3, 6))
sketch13.addConstraint(Sketcher.Constraint("Equal", 6, 9))
sketch13.addConstraint(Sketcher.Constraint("Symmetric", 0, 3, 6, 3, -1, 1))
sketch13.addConstraint(Sketcher.Constraint("Symmetric", 3, 3, 9, 3, -1, 1))
sketch13.addConstraint(Sketcher.Constraint("Symmetric", 0, 3, 3, 3, -2))
sketch13.addConstraint(Sketcher.Constraint("Radius", 0, 8.0))
sketch13.addConstraint(Sketcher.Constraint("DistanceX", 3, 3, 0, 3, 79.0))
sketch13.addConstraint(Sketcher.Constraint("DistanceY", 3, 3, 6, 3, 61.0))
sketch13.setExpression("Constraints[30]", "Params.sketch13_radius")
pad6 = doc.addObject("PartDesign::Pad", "Pad005")
body.addObject(pad6)
pad6.Profile = sketch13
pad6.setExpression("Length", "Params.pad6_length")

# Sketch on XY plane
sketch14 = doc.addObject("Sketcher::SketchObject", "Sketch013")
body.addObject(sketch14)
sketch14.AttachmentSupport = (doc.XY_Plane, [""])
sketch14.MapMode = "FlatFace"
sketch14.AttachmentOffset = App.Placement(Vector(0, 0, -17), App.Rotation())
sketch14.addGeometry(Part.Circle(Vector(39.5, -30.5, 0), Vector(0, 0, 1), 1), False)
sketch14.addGeometry(Part.Circle(Vector(39.5, 30.5, 0), Vector(0, 0, 1), 1), False)
sketch14.addGeometry(Part.Circle(Vector(-39.5, -30.5, 0), Vector(0, 0, 1), 1), False)
sketch14.addGeometry(Part.Circle(Vector(-39.5, 30.5, 0), Vector(0, 0, 1), 1), False)
sketch14.addConstraint(Sketcher.Constraint("Equal", 0, 1))
sketch14.addConstraint(Sketcher.Constraint("Equal", 1, 2))
sketch14.addConstraint(Sketcher.Constraint("Equal", 2, 3))
sketch14.addConstraint(Sketcher.Constraint("Symmetric", 1, 3, 2, 3, -1, 1))
sketch14.addConstraint(Sketcher.Constraint("Symmetric", 0, 3, 3, 3, -1, 1))
sketch14.addConstraint(Sketcher.Constraint("Symmetric", 0, 3, 2, 3, -2))
sketch14.addConstraint(Sketcher.Constraint("Diameter", 0, 2.0))
sketch14.addConstraint(Sketcher.Constraint("DistanceY", 0, 3, 1, 3, 61.0))
sketch14.addConstraint(Sketcher.Constraint("DistanceX", 2, 3, 0, 3, 79.0))
sketch14.setExpression("Constraints[6]", "Params.sketch14_diameter")
pocket8 = doc.addObject("PartDesign::Pocket", "Pocket007")
body.addObject(pocket8)
pocket8.Profile = sketch14
pocket8.setExpression("Length", "Params.pocket8_length")
pocket8.Reversed = True

# Sketch on XZ plane
sketch15 = doc.addObject("Sketcher::SketchObject", "Sketch014")
body.addObject(sketch15)
sketch15.AttachmentSupport = (doc.XZ_Plane, [""])
sketch15.MapMode = "FlatFace"
sketch15.AttachmentOffset = App.Placement(Vector(0, 0, 22.5), App.Rotation())
sketch15.addGeometry(Part.LineSegment(Vector(-6.3, 19.4, 0), Vector(-10.3, 19.4, 0)), False)
sketch15.addGeometry(Part.LineSegment(Vector(-10.3, 19.4, 0), Vector(-10.3, 7.4, 0)), False)
sketch15.addGeometry(Part.LineSegment(Vector(-10.3, 7.4, 0), Vector(-8.3, 9.4, 0)), False)
sketch15.addGeometry(Part.LineSegment(Vector(-8.3, 9.4, 0), Vector(-6.3, 7.4, 0)), False)
sketch15.addGeometry(Part.LineSegment(Vector(-6.3, 7.4, 0), Vector(-6.3, 19.4, 0)), False)
sketch15.addGeometry(Part.LineSegment(Vector(10.3, 19.4, 0), Vector(6.3, 19.4, 0)), False)
sketch15.addGeometry(Part.LineSegment(Vector(6.3, 19.4, 0), Vector(6.3, 7.4, 0)), False)
sketch15.addGeometry(Part.LineSegment(Vector(6.3, 7.4, 0), Vector(8.3, 9.4, 0)), False)
sketch15.addGeometry(Part.LineSegment(Vector(8.3, 9.4, 0), Vector(10.3, 7.4, 0)), False)
sketch15.addGeometry(Part.LineSegment(Vector(10.3, 7.4, 0), Vector(10.3, 19.4, 0)), False)
sketch15.addConstraint(Sketcher.Constraint("Coincident", 0, 2, 1, 1))
sketch15.addConstraint(Sketcher.Constraint("Coincident", 1, 2, 2, 1))
sketch15.addConstraint(Sketcher.Constraint("Coincident", 2, 2, 3, 1))
sketch15.addConstraint(Sketcher.Constraint("Coincident", 3, 2, 4, 1))
sketch15.addConstraint(Sketcher.Constraint("Coincident", 4, 2, 0, 1))
sketch15.addConstraint(Sketcher.Constraint("Coincident", 5, 2, 6, 1))
sketch15.addConstraint(Sketcher.Constraint("Coincident", 6, 2, 7, 1))
sketch15.addConstraint(Sketcher.Constraint("Coincident", 7, 2, 8, 1))
sketch15.addConstraint(Sketcher.Constraint("Coincident", 8, 2, 9, 1))
sketch15.addConstraint(Sketcher.Constraint("Coincident", 9, 2, 5, 1))
sketch15.addConstraint(Sketcher.Constraint("Horizontal", 0))
sketch15.addConstraint(Sketcher.Constraint("Vertical", 1))
sketch15.addConstraint(Sketcher.Constraint("Vertical", 4))
sketch15.addConstraint(Sketcher.Constraint("Horizontal", 5))
sketch15.addConstraint(Sketcher.Constraint("Vertical", 6))
sketch15.addConstraint(Sketcher.Constraint("Vertical", 9))
sketch15.addConstraint(Sketcher.Constraint("Perpendicular", 2, 3))
sketch15.addConstraint(Sketcher.Constraint("Perpendicular", 3, 7))
sketch15.addConstraint(Sketcher.Constraint("Perpendicular", 7, 8))
sketch15.addConstraint(Sketcher.Constraint("Horizontal", 1, 2, 3, 2))
sketch15.addConstraint(Sketcher.Constraint("Horizontal", 6, 2, 8, 2))
sketch15.addConstraint(Sketcher.Constraint("Equal", 0, 5))
sketch15.addConstraint(Sketcher.Constraint("Equal", 4, 6))
sketch15.addConstraint(Sketcher.Constraint("Equal", 2, 3))
sketch15.addConstraint(Sketcher.Constraint("DistanceX", 0, 2, 0, 1, 4.0))
sketch15.addConstraint(Sketcher.Constraint("DistanceY", 1, 2, 1, 1, 12.0))
sketch15.addConstraint(Sketcher.Constraint("DistanceY", -1, 1, 0, 2, 19.446631))
sketch15.addConstraint(Sketcher.Constraint("DistanceX", 0, 2, -1, 1, 10.298777))
sketch15.addConstraint(Sketcher.Constraint("DistanceX", -1, 1, 5, 2, 6.298776))
sketch15.addConstraint(Sketcher.Constraint("DistanceY", -1, 1, 5, 2, 19.445346))
sketch15.setExpression("Constraints[24]", "Params.sketch15_width")
sketch15.setExpression("Constraints[25]", "Params.sketch15_height")
pad7 = doc.addObject("PartDesign::Pad", "Pad006")
body.addObject(pad7)
pad7.Profile = sketch15
pad7.setExpression("Length", "Params.pad7_length")

doc.recompute()
